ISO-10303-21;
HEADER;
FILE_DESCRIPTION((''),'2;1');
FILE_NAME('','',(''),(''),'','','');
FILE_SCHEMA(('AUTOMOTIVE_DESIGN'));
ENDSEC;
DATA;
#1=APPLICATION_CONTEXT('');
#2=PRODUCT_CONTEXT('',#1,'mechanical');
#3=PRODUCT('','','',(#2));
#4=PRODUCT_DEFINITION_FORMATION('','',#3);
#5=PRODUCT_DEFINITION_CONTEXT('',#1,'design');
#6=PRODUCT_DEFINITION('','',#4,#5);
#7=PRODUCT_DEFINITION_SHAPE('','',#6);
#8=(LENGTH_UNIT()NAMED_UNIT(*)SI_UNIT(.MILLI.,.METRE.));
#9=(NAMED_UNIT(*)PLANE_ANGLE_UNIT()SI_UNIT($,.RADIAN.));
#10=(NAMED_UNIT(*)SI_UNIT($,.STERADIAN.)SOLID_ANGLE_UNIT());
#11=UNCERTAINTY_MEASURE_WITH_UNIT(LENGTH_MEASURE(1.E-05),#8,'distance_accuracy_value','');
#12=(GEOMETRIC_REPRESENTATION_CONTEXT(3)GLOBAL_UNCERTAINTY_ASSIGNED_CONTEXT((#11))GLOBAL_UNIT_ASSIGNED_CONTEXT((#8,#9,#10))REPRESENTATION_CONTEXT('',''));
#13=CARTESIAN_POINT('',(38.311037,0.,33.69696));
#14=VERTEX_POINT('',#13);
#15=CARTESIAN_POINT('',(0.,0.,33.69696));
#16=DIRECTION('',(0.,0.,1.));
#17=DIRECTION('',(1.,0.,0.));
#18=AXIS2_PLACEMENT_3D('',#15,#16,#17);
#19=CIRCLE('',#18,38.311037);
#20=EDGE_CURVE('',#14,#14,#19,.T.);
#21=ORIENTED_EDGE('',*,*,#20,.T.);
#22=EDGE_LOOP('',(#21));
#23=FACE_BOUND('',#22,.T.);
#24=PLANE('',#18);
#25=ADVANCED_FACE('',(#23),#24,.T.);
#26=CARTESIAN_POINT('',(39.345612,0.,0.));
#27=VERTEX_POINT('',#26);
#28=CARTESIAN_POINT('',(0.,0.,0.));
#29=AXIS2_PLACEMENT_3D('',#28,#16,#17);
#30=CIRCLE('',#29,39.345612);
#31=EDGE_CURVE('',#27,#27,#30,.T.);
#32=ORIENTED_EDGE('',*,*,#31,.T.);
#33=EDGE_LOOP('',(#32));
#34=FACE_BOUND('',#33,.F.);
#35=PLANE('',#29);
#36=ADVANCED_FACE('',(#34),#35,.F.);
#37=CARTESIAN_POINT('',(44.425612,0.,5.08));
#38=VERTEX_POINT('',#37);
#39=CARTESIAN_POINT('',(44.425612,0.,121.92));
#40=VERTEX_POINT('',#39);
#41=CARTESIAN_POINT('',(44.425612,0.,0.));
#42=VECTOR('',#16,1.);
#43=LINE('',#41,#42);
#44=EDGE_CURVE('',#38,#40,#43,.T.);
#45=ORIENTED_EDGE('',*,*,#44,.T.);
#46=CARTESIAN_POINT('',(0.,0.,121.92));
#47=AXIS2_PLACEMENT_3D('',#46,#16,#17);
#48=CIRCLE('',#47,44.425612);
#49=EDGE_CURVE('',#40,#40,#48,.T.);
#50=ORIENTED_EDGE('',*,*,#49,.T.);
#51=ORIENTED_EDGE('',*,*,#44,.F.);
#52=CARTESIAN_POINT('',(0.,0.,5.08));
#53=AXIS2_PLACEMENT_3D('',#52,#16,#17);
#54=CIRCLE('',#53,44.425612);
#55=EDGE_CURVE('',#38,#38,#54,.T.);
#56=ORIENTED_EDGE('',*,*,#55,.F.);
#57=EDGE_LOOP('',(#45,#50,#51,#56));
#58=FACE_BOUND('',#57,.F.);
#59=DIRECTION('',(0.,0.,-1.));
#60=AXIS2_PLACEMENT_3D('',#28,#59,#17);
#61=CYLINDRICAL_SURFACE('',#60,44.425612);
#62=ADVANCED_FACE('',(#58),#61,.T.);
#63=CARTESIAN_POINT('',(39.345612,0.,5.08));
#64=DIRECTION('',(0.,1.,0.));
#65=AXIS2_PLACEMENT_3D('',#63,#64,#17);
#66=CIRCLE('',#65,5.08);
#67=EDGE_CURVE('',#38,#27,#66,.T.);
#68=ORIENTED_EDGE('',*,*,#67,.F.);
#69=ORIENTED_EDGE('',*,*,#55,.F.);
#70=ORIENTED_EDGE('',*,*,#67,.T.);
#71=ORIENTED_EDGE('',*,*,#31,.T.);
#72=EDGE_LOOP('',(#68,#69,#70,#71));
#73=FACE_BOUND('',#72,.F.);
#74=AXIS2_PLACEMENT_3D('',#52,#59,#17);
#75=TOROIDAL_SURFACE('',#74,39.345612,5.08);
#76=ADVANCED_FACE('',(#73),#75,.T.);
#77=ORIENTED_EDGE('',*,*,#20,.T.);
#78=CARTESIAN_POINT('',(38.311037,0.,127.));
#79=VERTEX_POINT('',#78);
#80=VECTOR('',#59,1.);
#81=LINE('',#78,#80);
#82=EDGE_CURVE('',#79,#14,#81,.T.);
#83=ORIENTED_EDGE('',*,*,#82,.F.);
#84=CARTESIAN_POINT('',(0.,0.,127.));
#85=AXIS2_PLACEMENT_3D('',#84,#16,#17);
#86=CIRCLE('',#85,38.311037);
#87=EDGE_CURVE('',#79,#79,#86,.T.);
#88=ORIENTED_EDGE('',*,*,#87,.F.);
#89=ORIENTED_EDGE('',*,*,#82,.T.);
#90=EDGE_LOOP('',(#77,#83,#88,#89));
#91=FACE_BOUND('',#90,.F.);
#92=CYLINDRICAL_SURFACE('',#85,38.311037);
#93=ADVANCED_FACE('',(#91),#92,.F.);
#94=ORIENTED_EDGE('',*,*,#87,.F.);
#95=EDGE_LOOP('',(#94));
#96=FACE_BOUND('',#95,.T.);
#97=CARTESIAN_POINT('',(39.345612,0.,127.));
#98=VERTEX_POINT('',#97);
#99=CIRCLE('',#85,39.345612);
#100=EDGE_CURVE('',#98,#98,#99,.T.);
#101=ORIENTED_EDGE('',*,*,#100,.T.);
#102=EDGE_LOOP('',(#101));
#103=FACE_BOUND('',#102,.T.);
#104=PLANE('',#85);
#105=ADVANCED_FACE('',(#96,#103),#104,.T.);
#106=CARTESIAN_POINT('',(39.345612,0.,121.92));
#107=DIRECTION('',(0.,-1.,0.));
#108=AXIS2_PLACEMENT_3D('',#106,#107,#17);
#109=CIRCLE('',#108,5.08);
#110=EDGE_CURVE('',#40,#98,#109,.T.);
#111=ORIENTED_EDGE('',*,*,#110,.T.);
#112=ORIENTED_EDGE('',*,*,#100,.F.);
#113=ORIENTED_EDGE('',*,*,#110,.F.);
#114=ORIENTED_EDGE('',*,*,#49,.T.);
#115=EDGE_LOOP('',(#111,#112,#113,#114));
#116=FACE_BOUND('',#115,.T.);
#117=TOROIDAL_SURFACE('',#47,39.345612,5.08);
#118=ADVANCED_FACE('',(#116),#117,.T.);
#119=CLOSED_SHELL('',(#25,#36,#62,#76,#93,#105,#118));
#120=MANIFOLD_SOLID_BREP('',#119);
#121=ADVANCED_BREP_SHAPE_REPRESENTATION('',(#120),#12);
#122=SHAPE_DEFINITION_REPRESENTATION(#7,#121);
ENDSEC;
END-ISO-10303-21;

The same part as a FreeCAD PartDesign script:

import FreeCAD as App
import Part
import Sketcher
from FreeCAD import Vector
Q = App.Units.Quantity


def edges_at(feature, points):
    """Names of the edges that pass closest to the given points."""
    edges = feature.Shape.Edges
    near = lambda p: min(range(len(edges)), key=lambda i: edges[i].distToShape(Part.Vertex(*p))[0])
    return sorted({f"Edge{near(p) + 1}" for p in points})

doc = App.newDocument("Part")
body = doc.addObject("PartDesign::Body", "Body")

sketch1 = body.newObject("Sketcher::SketchObject", "Sketch")
sketch1.AttachmentSupport = (doc.getObject("XY_Plane"), [""])
sketch1.MapMode = "FlatFace"
sketch1.addGeometry(Part.Circle(Vector(0, 0, 0), Vector(0, 0, 1), 44.425612), False)
sketch1.addConstraint([
    Sketcher.Constraint("Coincident", 0, 3, -1, 1),
    Sketcher.Constraint("Diameter", 0, 88.851224),
])
pad1 = body.newObject("PartDesign::Pad", "Pad")
pad1.Profile = sketch1
pad1.Length = Q("5 in")

sketch2 = body.newObject("Sketcher::SketchObject", "Sketch001")
sketch2.AttachmentSupport = (doc.getObject("XY_Plane"), [""])
sketch2.MapMode = "FlatFace"
sketch2.AttachmentOffset = App.Placement(Vector(0, 0, 5 * 25.4), App.Rotation())
sketch2.addGeometry(Part.Circle(Vector(0, 0, 0), Vector(0, 0, 1), 38.311037), False)
sketch2.addConstraint([
    Sketcher.Constraint("Coincident", 0, 3, -1, 1),
    Sketcher.Constraint("Diameter", 0, 76.622074),
])
pocket1 = body.newObject("PartDesign::Pocket", "Pocket")
pocket1.Profile = sketch2
pocket1.Length = 93.30304
doc.recompute()

fillet = body.newObject("PartDesign::Fillet", "Fillet")
fillet.Base = (pocket1, edges_at(pocket1, [(-44.426, 0, 127)]))
fillet.Radius = Q("0.2 in")
doc.recompute()

fillet2 = body.newObject("PartDesign::Fillet", "Fillet001")
fillet2.Base = (fillet, edges_at(fillet, [(-44.426, 0, 0)]))
fillet2.Radius = Q("0.2 in")

doc.recompute()
